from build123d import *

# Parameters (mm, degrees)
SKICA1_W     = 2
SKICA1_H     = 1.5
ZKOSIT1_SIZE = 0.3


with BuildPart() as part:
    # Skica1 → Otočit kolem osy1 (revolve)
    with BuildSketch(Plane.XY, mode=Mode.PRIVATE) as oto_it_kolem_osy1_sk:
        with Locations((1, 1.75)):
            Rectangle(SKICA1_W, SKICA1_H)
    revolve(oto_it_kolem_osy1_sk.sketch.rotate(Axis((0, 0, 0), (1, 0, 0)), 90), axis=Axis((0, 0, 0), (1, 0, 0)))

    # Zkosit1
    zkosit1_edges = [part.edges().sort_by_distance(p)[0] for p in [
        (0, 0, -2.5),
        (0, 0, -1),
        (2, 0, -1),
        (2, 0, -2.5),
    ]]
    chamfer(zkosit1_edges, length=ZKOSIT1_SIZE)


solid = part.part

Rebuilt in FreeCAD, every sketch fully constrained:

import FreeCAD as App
import Part
import Sketcher

V = App.Vector
Q = App.Units.Quantity


def edges_at(feature, points):
    """Names of the edges that pass closest to the given points."""
    edges = feature.Shape.Edges
    near = lambda p: min(range(len(edges)), key=lambda i: edges[i].distToShape(Part.Vertex(*p))[0])
    return sorted({f"Edge{near(p) + 1}" for p in points})


def add_polygon(sketch, points):
    """Adds a closed chain of lines whose ends are joined by coincident constraints."""
    first, n = sketch.GeometryCount, len(points)
    for a, b in zip(points, points[1:] + points[:1]):
        sketch.addGeometry(Part.LineSegment(App.Vector(*a, 0), App.Vector(*b, 0)), False)
    for i in range(n):
        sketch.addConstraint(Sketcher.Constraint("Coincident", first + i, 2, first + (i + 1) % n, 1))

doc = App.newDocument("Part")
body = doc.addObject("PartDesign::Body", "Body")

# Sketch on XY plane
sketch1 = body.newObject("Sketcher::SketchObject", "Sketch")
sketch1.AttachmentSupport = (doc.getObject("XY_Plane"), [""])
sketch1.MapMode = "FlatFace"
add_polygon(sketch1, [(0, 2.5), (0, 1), (2, 1), (2, 2.5)])  # lines 0-3
sketch1.addConstraint([
    Sketcher.Constraint("Vertical", 0),
    Sketcher.Constraint("Horizontal", 1),
    Sketcher.Constraint("Vertical", 2),
    Sketcher.Constraint("Horizontal", 3),
    Sketcher.Constraint("PointOnObject", 0, 2, -2),
    Sketcher.Constraint("DistanceX", 1, 1, 1, 2, Q("2 mm")),
    Sketcher.Constraint("DistanceY", 0, 2, 0, 1, Q("1.5 mm")),
    Sketcher.Constraint("DistanceY", -1, 1, 0, 2, Q("1 mm")),
])
revolution = body.newObject("PartDesign::Revolution", "Revolution")
revolution.Profile = sketch1
revolution.ReferenceAxis = (sketch1, ["H_Axis"])
revolution.Angle = 360
doc.recompute()

chamfer = body.newObject("PartDesign::Chamfer", "Chamfer")
chamfer.Base = (revolution, edges_at(revolution, [
    (0, 0, -2.5),
    (0, 0, -1),
    (2, 0, -1),
    (2, 0, -2.5),
]))
chamfer.Size = 0.3

doc.recompute()
